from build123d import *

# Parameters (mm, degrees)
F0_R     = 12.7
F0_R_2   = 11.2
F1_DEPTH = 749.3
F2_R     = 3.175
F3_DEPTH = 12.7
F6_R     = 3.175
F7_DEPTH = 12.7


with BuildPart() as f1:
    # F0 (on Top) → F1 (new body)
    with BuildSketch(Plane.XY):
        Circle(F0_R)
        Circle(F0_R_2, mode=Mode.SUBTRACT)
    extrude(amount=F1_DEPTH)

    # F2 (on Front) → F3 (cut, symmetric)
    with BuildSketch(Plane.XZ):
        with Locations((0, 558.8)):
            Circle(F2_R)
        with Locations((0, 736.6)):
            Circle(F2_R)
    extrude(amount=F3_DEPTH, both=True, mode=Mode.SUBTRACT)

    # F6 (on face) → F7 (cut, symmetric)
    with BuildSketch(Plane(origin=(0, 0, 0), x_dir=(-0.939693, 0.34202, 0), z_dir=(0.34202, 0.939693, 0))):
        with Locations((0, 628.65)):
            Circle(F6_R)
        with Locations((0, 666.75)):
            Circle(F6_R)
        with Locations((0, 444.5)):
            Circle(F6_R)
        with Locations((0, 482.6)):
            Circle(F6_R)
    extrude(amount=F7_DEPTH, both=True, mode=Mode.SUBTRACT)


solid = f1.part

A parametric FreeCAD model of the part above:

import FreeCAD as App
import Part
import Sketcher

V = App.Vector
Q = App.Units.Quantity

doc = App.newDocument("Part")
body = doc.addObject("PartDesign::Body", "Body")

# Sketch on XY plane
sketch1 = doc.addObject("Sketcher::SketchObject", "Sketch")
body.addObject(sketch1)
sketch1.AttachmentSupport = (doc.XY_Plane, [""])
sketch1.MapMode = "FlatFace"
sketch1.addGeometry([
    Part.Circle(V(0, 0, 0), V(0, 0, 1), 12.7),
    Part.Circle(V(0, 0, 0), V(0, 0, 1), 11.2),
], False)
sketch1.addConstraint([
    Sketcher.Constraint("Coincident", 0, 3, -1, 1),
    Sketcher.Constraint("Coincident", 1, 3, -1, 1),
    Sketcher.Constraint("Diameter", 0, Q("1 in")),
    Sketcher.Constraint("Diameter", 1, Q("22.4 mm")),
])
pad1 = doc.addObject("PartDesign::Pad", "Pad")
body.addObject(pad1)
pad1.Profile = sketch1
pad1.Length = Q("29.5 in")

# Sketch on XZ plane
sketch2 = doc.addObject("Sketcher::SketchObject", "Sketch001")
body.addObject(sketch2)
sketch2.AttachmentSupport = (doc.XZ_Plane, [""])
sketch2.MapMode = "FlatFace"
sketch2.addGeometry([
    Part.Circle(V(0, 558.8, 0), V(0, 0, 1), 3.175),
    Part.Circle(V(0, 736.6, 0), V(0, 0, 1), 3.175),
], False)
sketch2.addConstraint([
    Sketcher.Constraint("Equal", 0, 1),
    Sketcher.Constraint("PointOnObject", 0, 3, -2),
    Sketcher.Constraint("PointOnObject", 1, 3, -2),
    Sketcher.Constraint("Diameter", 0, Q("0.25 in")),
    Sketcher.Constraint("DistanceY", -1, 1, 0, 3, Q("22 in")),
    Sketcher.Constraint("DistanceY", -1, 1, 1, 3, Q("29 in")),
])
pocket1 = doc.addObject("PartDesign::Pocket", "Pocket")
body.addObject(pocket1)
pocket1.Profile = sketch2
pocket1.Length = Q("1 in")
pocket1.Midplane = True

# Sketch on an angled plane
sketch3 = doc.addObject("Sketcher::SketchObject", "Sketch002")
body.addObject(sketch3)
sketch3.Placement = App.Placement(V(0, 0, 0), App.Rotation(V(-0.939692711, 0.342019895, 0), V(0, 0, 1), V(0.342019895, 0.939692711, 0), "ZXY"))
sketch3.addGeometry([
    Part.Circle(V(0, 628.65, 0), V(0, 0, 1), 3.175),
    Part.Circle(V(0, 666.75, 0), V(0, 0, 1), 3.175),
    Part.Circle(V(0, 444.5, 0), V(0, 0, 1), 3.175),
    Part.Circle(V(0, 482.6, 0), V(0, 0, 1), 3.175),
], False)
sketch3.addConstraint([
    Sketcher.Constraint("Equal", 0, 1),
    Sketcher.Constraint("Equal", 1, 2),
    Sketcher.Constraint("Equal", 2, 3),
    Sketcher.Constraint("PointOnObject", 0, 3, -2),
    Sketcher.Constraint("PointOnObject", 1, 3, -2),
    Sketcher.Constraint("PointOnObject", 2, 3, -2),
    Sketcher.Constraint("PointOnObject", 3, 3, -2),
    Sketcher.Constraint("Diameter", 0, Q("0.25 in")),
    Sketcher.Constraint("DistanceY", -1, 1, 3, 3, Q("19 in")),
    Sketcher.Constraint("DistanceY", -1, 1, 2, 3, Q("17.5 in")),
    Sketcher.Constraint("DistanceY", 0, 3, 1, 3, Q("1.5 in")),
    Sketcher.Constraint("DistanceY", -1, 1, 0, 3, Q("24.75 in")),
])
pocket2 = doc.addObject("PartDesign::Pocket", "Pocket001")
body.addObject(pocket2)
pocket2.Profile = sketch3
pocket2.Length = Q("1 in")
pocket2.Midplane = True

doc.recompute()
